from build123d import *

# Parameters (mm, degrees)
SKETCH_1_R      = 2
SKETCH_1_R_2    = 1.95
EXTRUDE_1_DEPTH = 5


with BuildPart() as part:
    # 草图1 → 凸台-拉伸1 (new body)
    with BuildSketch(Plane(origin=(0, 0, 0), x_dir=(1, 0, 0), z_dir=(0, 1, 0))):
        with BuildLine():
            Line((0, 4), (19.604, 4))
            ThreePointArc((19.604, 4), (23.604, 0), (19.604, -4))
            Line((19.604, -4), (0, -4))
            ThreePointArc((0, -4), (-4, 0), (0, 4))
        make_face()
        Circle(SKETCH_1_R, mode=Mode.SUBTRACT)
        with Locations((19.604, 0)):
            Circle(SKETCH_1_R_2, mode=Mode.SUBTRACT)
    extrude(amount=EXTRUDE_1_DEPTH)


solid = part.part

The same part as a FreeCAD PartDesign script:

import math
import FreeCAD as App
import Part
import Sketcher

V = App.Vector
Q = App.Units.Quantity

doc = App.newDocument("Part")
body = doc.addObject("PartDesign::Body", "Body")

sketch1 = body.newObject("Sketcher::SketchObject", "Sketch")
sketch1.AttachmentSupport = (doc.getObject("XZ_Plane"), [""])
sketch1.MapMode = "FlatFace"
sketch1.addGeometry(Part.LineSegment(V(19.6, -4, 0), V(0, -4, 0)), False)
sketch1.addGeometry(Part.ArcOfCircle(Part.Circle(V(0, 0, 0), V(0, 0, 1), 4), math.radians(90), math.radians(270)), False)
sketch1.addGeometry(Part.LineSegment(V(0, 4, 0), V(19.6, 4, 0)), False)
sketch1.addGeometry(Part.ArcOfCircle(Part.Circle(V(19.6, 0, 0), V(0, 0, 1), 4), math.radians(-90), math.radians(90)), False)
sketch1.addGeometry(Part.Circle(V(19.6, 0, 0), V(0, 0, 1), 1.9), False)
sketch1.addGeometry(Part.Circle(V(0, 0, 0), V(0, 0, 1), 2), False)
sketch1.addConstraint(Sketcher.Constraint("Tangent", 0, 2, 1, 2))
sketch1.addConstraint(Sketcher.Constraint("Tangent", 1, 1, 2, 1))
sketch1.addConstraint(Sketcher.Constraint("Tangent", 2, 2, 3, 2))
sketch1.addConstraint(Sketcher.Constraint("Tangent", 3, 1, 0, 1))
sketch1.addConstraint(Sketcher.Constraint("Horizontal", 0))
sketch1.addConstraint(Sketcher.Constraint("Horizontal", 2))
sketch1.addConstraint(Sketcher.Constraint("Coincident", 1, 3, -1, 1))
sketch1.addConstraint(Sketcher.Constraint("Coincident", 5, 3, -1, 1))
sketch1.addConstraint(Sketcher.Constraint("Coincident", 4, 3, 3, 3))
sketch1.addConstraint(Sketcher.Constraint("Diameter", 5, Q("4 mm")))
sketch1.addConstraint(Sketcher.Constraint("Radius", 1, Q("4 mm")))
sketch1.addConstraint(Sketcher.Constraint("Diameter", 4, Q("3.9 mm")))
sketch1.addConstraint(Sketcher.Constraint("DistanceX", 0, 2, 0, 1, Q("19.604 mm")))
pad1 = body.newObject("PartDesign::Pad", "Pad")
pad1.Profile = sketch1
pad1.Length = 5
pad1.Reversed = True

doc.recompute()
